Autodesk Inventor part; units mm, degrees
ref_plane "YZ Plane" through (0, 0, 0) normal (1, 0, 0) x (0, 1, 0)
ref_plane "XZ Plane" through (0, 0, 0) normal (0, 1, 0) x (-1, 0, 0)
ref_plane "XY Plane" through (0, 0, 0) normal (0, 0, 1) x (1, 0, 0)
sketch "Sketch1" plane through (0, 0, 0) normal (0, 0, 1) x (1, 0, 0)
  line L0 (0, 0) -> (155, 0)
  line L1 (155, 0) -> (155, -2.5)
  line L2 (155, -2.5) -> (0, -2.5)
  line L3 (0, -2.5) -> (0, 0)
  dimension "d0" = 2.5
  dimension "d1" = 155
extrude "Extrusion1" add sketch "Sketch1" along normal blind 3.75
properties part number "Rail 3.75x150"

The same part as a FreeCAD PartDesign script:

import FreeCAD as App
import Part
import Sketcher

V = App.Vector

doc = App.newDocument("Part")
body = doc.addObject("PartDesign::Body", "Body")

# Sketch on XY plane
sketch1 = body.newObject("Sketcher::SketchObject", "Sketch")
sketch1.AttachmentSupport = (doc.getObject("XY_Plane"), [""])
sketch1.MapMode = "FlatFace"
sketch1.addGeometry(Part.LineSegment(V(155, 0, 0), V(0, 0, 0)), False)
sketch1.addGeometry(Part.LineSegment(V(0, 0, 0), V(0, -2.5, 0)), False)
sketch1.addGeometry(Part.LineSegment(V(0, -2.5, 0), V(155, -2.5, 0)), False)
sketch1.addGeometry(Part.LineSegment(V(155, -2.5, 0), V(155, 0, 0)), False)
sketch1.addConstraint(Sketcher.Constraint("Coincident", 0, 2, 1, 1))
sketch1.addConstraint(Sketcher.Constraint("Coincident", 1, 2, 2, 1))
sketch1.addConstraint(Sketcher.Constraint("Coincident", 2, 2, 3, 1))
sketch1.addConstraint(Sketcher.Constraint("Coincident", 3, 2, 0, 1))
sketch1.addConstraint(Sketcher.Constraint("Horizontal", 0))
sketch1.addConstraint(Sketcher.Constraint("Vertical", 1))
sketch1.addConstraint(Sketcher.Constraint("Horizontal", 2))
sketch1.addConstraint(Sketcher.Constraint("Vertical", 3))
sketch1.addConstraint(Sketcher.Constraint("Coincident", 0, 2, -1, 1))
sketch1.addConstraint(Sketcher.Constraint("DistanceX", 0, 2, 0, 1, 155.0))
sketch1.addConstraint(Sketcher.Constraint("DistanceY", 1, 2, 1, 1, 2.5))
pad1 = body.newObject("PartDesign::Pad", "Pad")
pad1.Profile = sketch1
pad1.Length = 3.75

doc.recompute()
